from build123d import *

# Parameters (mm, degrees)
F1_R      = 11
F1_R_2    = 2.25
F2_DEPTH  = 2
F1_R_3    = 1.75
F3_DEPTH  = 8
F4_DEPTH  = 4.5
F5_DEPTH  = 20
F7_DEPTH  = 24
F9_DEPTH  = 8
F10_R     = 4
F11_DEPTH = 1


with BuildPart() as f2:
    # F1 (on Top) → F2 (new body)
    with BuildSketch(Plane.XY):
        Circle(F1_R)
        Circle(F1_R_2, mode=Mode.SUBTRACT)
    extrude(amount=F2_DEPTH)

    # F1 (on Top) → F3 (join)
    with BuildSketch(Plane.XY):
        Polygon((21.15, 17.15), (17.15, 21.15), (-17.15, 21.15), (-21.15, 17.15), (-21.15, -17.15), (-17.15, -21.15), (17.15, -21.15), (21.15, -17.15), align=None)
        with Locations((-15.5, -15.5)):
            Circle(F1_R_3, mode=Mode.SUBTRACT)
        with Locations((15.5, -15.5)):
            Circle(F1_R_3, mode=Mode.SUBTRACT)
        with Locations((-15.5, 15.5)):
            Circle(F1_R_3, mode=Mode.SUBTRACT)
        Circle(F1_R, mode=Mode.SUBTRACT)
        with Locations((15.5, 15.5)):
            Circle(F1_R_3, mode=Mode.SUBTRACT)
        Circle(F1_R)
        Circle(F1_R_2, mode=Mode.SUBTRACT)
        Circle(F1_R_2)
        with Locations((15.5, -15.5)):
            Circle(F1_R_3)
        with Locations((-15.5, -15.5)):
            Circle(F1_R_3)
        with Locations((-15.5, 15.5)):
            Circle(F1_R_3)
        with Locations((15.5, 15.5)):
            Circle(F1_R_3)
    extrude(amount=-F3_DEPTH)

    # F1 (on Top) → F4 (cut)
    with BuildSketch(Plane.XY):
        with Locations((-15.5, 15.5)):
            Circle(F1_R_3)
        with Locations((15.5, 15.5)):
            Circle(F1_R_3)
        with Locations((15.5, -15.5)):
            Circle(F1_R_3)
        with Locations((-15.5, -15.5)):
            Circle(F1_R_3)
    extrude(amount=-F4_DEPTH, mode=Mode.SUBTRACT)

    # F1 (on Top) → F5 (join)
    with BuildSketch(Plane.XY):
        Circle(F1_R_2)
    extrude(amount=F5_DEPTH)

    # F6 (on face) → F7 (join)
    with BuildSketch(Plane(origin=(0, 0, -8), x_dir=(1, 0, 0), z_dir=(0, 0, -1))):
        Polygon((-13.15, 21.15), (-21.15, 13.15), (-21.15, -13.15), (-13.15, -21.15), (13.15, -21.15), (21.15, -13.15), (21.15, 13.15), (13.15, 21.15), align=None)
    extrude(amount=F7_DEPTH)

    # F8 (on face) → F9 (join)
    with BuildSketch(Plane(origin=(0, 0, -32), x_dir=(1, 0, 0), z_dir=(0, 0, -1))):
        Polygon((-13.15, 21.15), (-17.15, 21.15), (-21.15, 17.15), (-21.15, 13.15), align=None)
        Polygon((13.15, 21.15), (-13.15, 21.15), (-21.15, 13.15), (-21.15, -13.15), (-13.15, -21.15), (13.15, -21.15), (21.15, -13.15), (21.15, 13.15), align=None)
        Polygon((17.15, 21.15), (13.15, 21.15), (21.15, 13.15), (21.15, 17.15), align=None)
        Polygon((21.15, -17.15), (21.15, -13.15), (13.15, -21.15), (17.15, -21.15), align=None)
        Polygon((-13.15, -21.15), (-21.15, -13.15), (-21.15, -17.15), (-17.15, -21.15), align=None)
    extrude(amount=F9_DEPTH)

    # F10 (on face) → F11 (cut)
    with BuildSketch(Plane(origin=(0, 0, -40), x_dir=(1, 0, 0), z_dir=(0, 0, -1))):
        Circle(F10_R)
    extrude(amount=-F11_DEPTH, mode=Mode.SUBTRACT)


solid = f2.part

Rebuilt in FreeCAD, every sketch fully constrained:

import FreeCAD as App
import Part
import Sketcher

V = App.Vector


def add_polygon(sketch, points):
    """Adds a closed chain of lines whose ends are joined by coincident constraints."""
    first, n = sketch.GeometryCount, len(points)
    for a, b in zip(points, points[1:] + points[:1]):
        sketch.addGeometry(Part.LineSegment(App.Vector(*a, 0), App.Vector(*b, 0)), False)
    for i in range(n):
        sketch.addConstraint(Sketcher.Constraint("Coincident", first + i, 2, first + (i + 1) % n, 1))

doc = App.newDocument("Part")
body = doc.addObject("PartDesign::Body", "Body")

# Sketch on XY plane
sketch1 = doc.addObject("Sketcher::SketchObject", "Sketch")
body.addObject(sketch1)
sketch1.AttachmentSupport = (doc.XY_Plane, [""])
sketch1.MapMode = "FlatFace"
sketch1.addGeometry(Part.Circle(V(0, 0, 0), V(0, 0, 1), 11), False)
sketch1.addGeometry(Part.Circle(V(0, 0, 0), V(0, 0, 1), 2.2), False)
sketch1.addConstraint(Sketcher.Constraint("Coincident", 0, 3, -1, 1))
sketch1.addConstraint(Sketcher.Constraint("Coincident", 1, 3, -1, 1))
sketch1.addConstraint(Sketcher.Constraint("Diameter", 0, 22.0))
sketch1.addConstraint(Sketcher.Constraint("Diameter", 1, 4.5))
pad1 = doc.addObject("PartDesign::Pad", "Pad")
body.addObject(pad1)
pad1.Profile = sketch1
pad1.Length = 2

# Sketch on XY plane
sketch2 = doc.addObject("Sketcher::SketchObject", "Sketch001")
body.addObject(sketch2)
sketch2.AttachmentSupport = (doc.XY_Plane, [""])
sketch2.MapMode = "FlatFace"
add_polygon(sketch2, [(21, 17), (17, 21), (-17, 21), (-21, 17), (-21, -17), (-17, -21), (17, -21), (21, -17)])  # lines 0-7
sketch2.addConstraint(Sketcher.Constraint("Horizontal", 1))
sketch2.addConstraint(Sketcher.Constraint("Vertical", 3))
sketch2.addConstraint(Sketcher.Constraint("Horizontal", 5))
sketch2.addConstraint(Sketcher.Constraint("Vertical", 7))
sketch2.addConstraint(Sketcher.Constraint("Symmetric", 0, 2, 4, 2, -1, 1))
sketch2.addConstraint(Sketcher.Constraint("Symmetric", 2, 2, 6, 2, -1, 1))
sketch2.addConstraint(Sketcher.Constraint("Perpendicular", 0, 2))
sketch2.addConstraint(Sketcher.Constraint("Perpendicular", 2, 4))
sketch2.addConstraint(Sketcher.Constraint("Perpendicular", 4, 6))
sketch2.addConstraint(Sketcher.Constraint("Horizontal", 3, 2, 6, 2))
sketch2.addConstraint(Sketcher.Constraint("Vertical", 1, 2, 4, 2))
sketch2.addConstraint(Sketcher.Constraint("Equal", 5, 3))
sketch2.addConstraint(Sketcher.Constraint("DistanceX", 1, 2, 1, 1, 34.3))
sketch2.addConstraint(Sketcher.Constraint("DistanceX", 2, 2, 1, 2, 4.0))
pad2 = doc.addObject("PartDesign::Pad", "Pad001")
body.addObject(pad2)
pad2.Profile = sketch2
pad2.Length = 8
pad2.Reversed = True

# Sketch on XY plane
sketch3 = doc.addObject("Sketcher::SketchObject", "Sketch002")
body.addObject(sketch3)
sketch3.AttachmentSupport = (doc.XY_Plane, [""])
sketch3.MapMode = "FlatFace"
sketch3.addGeometry(Part.Circle(V(-15.5, 15.5, 0), V(0, 0, 1), 1.8), False)
sketch3.addGeometry(Part.Circle(V(15.5, 15.5, 0), V(0, 0, 1), 1.8), False)
sketch3.addGeometry(Part.Circle(V(15.5, -15.5, 0), V(0, 0, 1), 1.8), False)
sketch3.addGeometry(Part.Circle(V(-15.5, -15.5, 0), V(0, 0, 1), 1.8), False)
sketch3.addConstraint(Sketcher.Constraint("Equal", 0, 1))
sketch3.addConstraint(Sketcher.Constraint("Equal", 1, 2))
sketch3.addConstraint(Sketcher.Constraint("Equal", 2, 3))
sketch3.addConstraint(Sketcher.Constraint("Symmetric", 0, 3, 2, 3, -1, 1))
sketch3.addConstraint(Sketcher.Constraint("Symmetric", 1, 3, 3, 3, -1, 1))
sketch3.addConstraint(Sketcher.Constraint("Symmetric", 0, 3, 1, 3, -2))
sketch3.addConstraint(Sketcher.Constraint("Diameter", 0, 3.5))
sketch3.addConstraint(Sketcher.Constraint("DistanceX", 0, 3, 1, 3, 31.0))
sketch3.addConstraint(Sketcher.Constraint("DistanceY", 2, 3, 1, 3, 31.0))
pocket1 = doc.addObject("PartDesign::Pocket", "Pocket")
body.addObject(pocket1)
pocket1.Profile = sketch3
pocket1.Length = 4.5

# Sketch on XY plane
sketch4 = doc.addObject("Sketcher::SketchObject", "Sketch003")
body.addObject(sketch4)
sketch4.AttachmentSupport = (doc.XY_Plane, [""])
sketch4.MapMode = "FlatFace"
sketch4.addGeometry(Part.Circle(V(0, 0, 0), V(0, 0, 1), 2.2), False)
sketch4.addConstraint(Sketcher.Constraint("Coincident", 0, 3, -1, 1))
sketch4.addConstraint(Sketcher.Constraint("Diameter", 0, 4.5))
pad3 = doc.addObject("PartDesign::Pad", "Pad002")
body.addObject(pad3)
pad3.Profile = sketch4
pad3.Length = 20

# Sketch on XY plane
sketch5 = doc.addObject("Sketcher::SketchObject", "Sketch004")
body.addObject(sketch5)
sketch5.AttachmentSupport = (doc.XY_Plane, [""])
sketch5.MapMode = "FlatFace"
sketch5.AttachmentOffset = App.Placement(V(0, 0, -8), App.Rotation())
add_polygon(sketch5, [(-13, -21), (-21, -13), (-21, 13), (-13, 21), (13, 21), (21, 13), (21, -13), (13, -21)])  # lines 0-7
sketch5.addConstraint(Sketcher.Constraint("Vertical", 1))
sketch5.addConstraint(Sketcher.Constraint("Horizontal", 3))
sketch5.addConstraint(Sketcher.Constraint("Vertical", 5))
sketch5.addConstraint(Sketcher.Constraint("Horizontal", 7))
sketch5.addConstraint(Sketcher.Constraint("Symmetric", 0, 2, 4, 2, -1, 1))
sketch5.addConstraint(Sketcher.Constraint("Symmetric", 2, 2, 6, 2, -1, 1))
sketch5.addConstraint(Sketcher.Constraint("Perpendicular", 0, 2))
sketch5.addConstraint(Sketcher.Constraint("Perpendicular", 2, 4))
sketch5.addConstraint(Sketcher.Constraint("Perpendicular", 4, 6))
sketch5.addConstraint(Sketcher.Constraint("Horizontal", 1, 2, 4, 2))
sketch5.addConstraint(Sketcher.Constraint("Vertical", 3, 2, 6, 2))
sketch5.addConstraint(Sketcher.Constraint("Equal", 7, 1))
sketch5.addConstraint(Sketcher.Constraint("DistanceX", 3, 1, 3, 2, 26.3))
sketch5.addConstraint(Sketcher.Constraint("DistanceX", 1, 2, 2, 2, 8.0))
pad4 = doc.addObject("PartDesign::Pad", "Pad003")
body.addObject(pad4)
pad4.Profile = sketch5
pad4.Length = 24
pad4.Reversed = True

# Sketch on XY plane
sketch6 = doc.addObject("Sketcher::SketchObject", "Sketch005")
body.addObject(sketch6)
sketch6.AttachmentSupport = (doc.XY_Plane, [""])
sketch6.MapMode = "FlatFace"
sketch6.AttachmentOffset = App.Placement(V(0, 0, -32), App.Rotation())
add_polygon(sketch6, [(-17, -21), (-21, -17), (-21, 17), (-17, 21), (17, 21), (21, 17), (21, -17), (17, -21)])  # lines 0-7
sketch6.addConstraint(Sketcher.Constraint("Vertical", 1))
sketch6.addConstraint(Sketcher.Constraint("Horizontal", 3))
sketch6.addConstraint(Sketcher.Constraint("Vertical", 5))
sketch6.addConstraint(Sketcher.Constraint("Horizontal", 7))
sketch6.addConstraint(Sketcher.Constraint("Symmetric", 0, 2, 4, 2, -1, 1))
sketch6.addConstraint(Sketcher.Constraint("Symmetric", 2, 2, 6, 2, -1, 1))
sketch6.addConstraint(Sketcher.Constraint("Perpendicular", 0, 2))
sketch6.addConstraint(Sketcher.Constraint("Perpendicular", 2, 4))
sketch6.addConstraint(Sketcher.Constraint("Perpendicular", 4, 6))
sketch6.addConstraint(Sketcher.Constraint("Horizontal", 1, 2, 4, 2))
sketch6.addConstraint(Sketcher.Constraint("Vertical", 3, 2, 6, 2))
sketch6.addConstraint(Sketcher.Constraint("Equal", 7, 1))
sketch6.addConstraint(Sketcher.Constraint("DistanceX", 3, 1, 3, 2, 34.3))
sketch6.addConstraint(Sketcher.Constraint("DistanceX", 1, 2, 2, 2, 4.0))
pad5 = doc.addObject("PartDesign::Pad", "Pad004")
body.addObject(pad5)
pad5.Profile = sketch6
pad5.Length = 8
pad5.Reversed = True

# Sketch on XY plane
sketch7 = doc.addObject("Sketcher::SketchObject", "Sketch006")
body.addObject(sketch7)
sketch7.AttachmentSupport = (doc.XY_Plane, [""])
sketch7.MapMode = "FlatFace"
sketch7.AttachmentOffset = App.Placement(V(0, 0, -40), App.Rotation())
sketch7.addGeometry(Part.Circle(V(0, 0, 0), V(0, 0, 1), 4), False)
sketch7.addConstraint(Sketcher.Constraint("Coincident", 0, 3, -1, 1))
sketch7.addConstraint(Sketcher.Constraint("Diameter", 0, 8.0))
pocket2 = doc.addObject("PartDesign::Pocket", "Pocket001")
body.addObject(pocket2)
pocket2.Profile = sketch7
pocket2.Length = 1
pocket2.Reversed = True

doc.recompute()
